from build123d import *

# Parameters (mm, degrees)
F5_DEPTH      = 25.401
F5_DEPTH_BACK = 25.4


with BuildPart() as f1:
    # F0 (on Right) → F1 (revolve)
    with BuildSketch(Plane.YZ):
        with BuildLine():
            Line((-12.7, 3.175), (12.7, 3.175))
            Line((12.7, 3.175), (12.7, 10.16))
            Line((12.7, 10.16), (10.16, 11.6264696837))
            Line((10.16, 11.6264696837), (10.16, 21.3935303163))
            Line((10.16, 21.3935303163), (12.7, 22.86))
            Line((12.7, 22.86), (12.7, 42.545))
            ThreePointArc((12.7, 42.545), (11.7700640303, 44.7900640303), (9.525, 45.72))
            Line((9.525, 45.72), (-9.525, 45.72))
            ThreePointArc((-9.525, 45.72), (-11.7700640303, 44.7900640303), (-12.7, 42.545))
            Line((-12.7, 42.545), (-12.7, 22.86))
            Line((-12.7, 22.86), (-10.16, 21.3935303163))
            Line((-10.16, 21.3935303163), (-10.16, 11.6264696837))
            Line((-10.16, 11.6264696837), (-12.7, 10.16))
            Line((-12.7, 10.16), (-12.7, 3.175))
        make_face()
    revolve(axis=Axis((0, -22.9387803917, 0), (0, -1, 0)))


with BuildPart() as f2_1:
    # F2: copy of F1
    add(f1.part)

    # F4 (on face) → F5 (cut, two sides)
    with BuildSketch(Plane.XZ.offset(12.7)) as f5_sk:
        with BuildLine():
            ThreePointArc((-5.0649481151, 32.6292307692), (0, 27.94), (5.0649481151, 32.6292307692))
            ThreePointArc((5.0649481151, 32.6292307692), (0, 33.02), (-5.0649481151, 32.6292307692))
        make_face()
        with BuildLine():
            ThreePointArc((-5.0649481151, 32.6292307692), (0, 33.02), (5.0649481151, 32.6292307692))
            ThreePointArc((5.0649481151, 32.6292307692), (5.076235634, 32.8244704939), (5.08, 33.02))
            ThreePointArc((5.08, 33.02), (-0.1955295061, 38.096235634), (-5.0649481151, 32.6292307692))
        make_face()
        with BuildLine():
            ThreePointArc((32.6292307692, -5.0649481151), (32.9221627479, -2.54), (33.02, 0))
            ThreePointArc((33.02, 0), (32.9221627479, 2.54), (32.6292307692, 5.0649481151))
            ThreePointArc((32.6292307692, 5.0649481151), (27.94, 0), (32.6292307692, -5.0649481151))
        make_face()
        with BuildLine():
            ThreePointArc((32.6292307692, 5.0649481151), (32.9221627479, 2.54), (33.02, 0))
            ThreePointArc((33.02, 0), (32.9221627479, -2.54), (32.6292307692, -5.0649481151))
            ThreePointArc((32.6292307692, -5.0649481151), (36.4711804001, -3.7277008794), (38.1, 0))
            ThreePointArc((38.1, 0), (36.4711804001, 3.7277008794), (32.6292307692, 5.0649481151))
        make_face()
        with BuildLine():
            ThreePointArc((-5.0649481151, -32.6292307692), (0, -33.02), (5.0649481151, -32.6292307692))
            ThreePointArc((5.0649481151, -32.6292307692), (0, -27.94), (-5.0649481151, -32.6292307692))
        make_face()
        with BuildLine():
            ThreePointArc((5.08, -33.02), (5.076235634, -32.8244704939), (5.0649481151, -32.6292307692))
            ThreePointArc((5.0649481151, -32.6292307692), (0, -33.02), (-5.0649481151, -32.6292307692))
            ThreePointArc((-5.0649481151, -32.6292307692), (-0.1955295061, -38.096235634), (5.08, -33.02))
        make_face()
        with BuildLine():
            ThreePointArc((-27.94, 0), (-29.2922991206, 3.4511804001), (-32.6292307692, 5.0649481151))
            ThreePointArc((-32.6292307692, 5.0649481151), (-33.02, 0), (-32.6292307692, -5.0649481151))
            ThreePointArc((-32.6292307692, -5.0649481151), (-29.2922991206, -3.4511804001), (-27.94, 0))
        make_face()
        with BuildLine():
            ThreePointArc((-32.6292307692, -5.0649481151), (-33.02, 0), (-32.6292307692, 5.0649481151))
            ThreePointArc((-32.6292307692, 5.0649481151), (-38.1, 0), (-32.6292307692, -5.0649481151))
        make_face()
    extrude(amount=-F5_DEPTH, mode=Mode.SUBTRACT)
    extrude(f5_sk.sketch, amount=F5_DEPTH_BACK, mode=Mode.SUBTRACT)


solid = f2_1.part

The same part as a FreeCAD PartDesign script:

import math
import FreeCAD as App
import Part
import Sketcher
from FreeCAD import Vector
Q = App.Units.Quantity

doc = App.newDocument("Part")
body = doc.addObject("PartDesign::Body", "Body")

# Sketch on YZ plane
sketch1 = doc.addObject("Sketcher::SketchObject", "Sketch")
body.addObject(sketch1)
sketch1.AttachmentSupport = (doc.YZ_Plane, [""])
sketch1.MapMode = "FlatFace"
sketch1.addGeometry(Part.LineSegment(Vector(-12.7, 3.2, 0), Vector(12.7, 3.2, 0)), False)
sketch1.addGeometry(Part.LineSegment(Vector(12.7, 3.2, 0), Vector(12.7, 10.2, 0)), False)
sketch1.addGeometry(Part.LineSegment(Vector(12.7, 10.2, 0), Vector(10.2, 11.6, 0)), False)
sketch1.addGeometry(Part.LineSegment(Vector(10.2, 11.6, 0), Vector(10.2, 21.4, 0)), False)
sketch1.addGeometry(Part.LineSegment(Vector(10.2, 21.4, 0), Vector(12.7, 22.9, 0)), False)
sketch1.addGeometry(Part.LineSegment(Vector(12.7, 22.9, 0), Vector(12.7, 42.5, 0)), False)
sketch1.addGeometry(Part.ArcOfCircle(Part.Circle(Vector(9.5, 42.5, 0), Vector(0, 0, 1), 3.2), math.radians(0), math.radians(90)), False)
sketch1.addGeometry(Part.LineSegment(Vector(9.5, 45.7, 0), Vector(-9.5, 45.7, 0)), False)
sketch1.addGeometry(Part.ArcOfCircle(Part.Circle(Vector(-9.5, 42.5, 0), Vector(0, 0, 1), 3.2), math.radians(90), math.radians(180)), False)
sketch1.addGeometry(Part.LineSegment(Vector(-12.7, 42.5, 0), Vector(-12.7, 22.9, 0)), False)
sketch1.addGeometry(Part.LineSegment(Vector(-12.7, 22.9, 0), Vector(-10.2, 21.4, 0)), False)
sketch1.addGeometry(Part.LineSegment(Vector(-10.2, 21.4, 0), Vector(-10.2, 11.6, 0)), False)
sketch1.addGeometry(Part.LineSegment(Vector(-10.2, 11.6, 0), Vector(-12.7, 10.2, 0)), False)
sketch1.addGeometry(Part.LineSegment(Vector(-12.7, 10.2, 0), Vector(-12.7, 3.2, 0)), False)
sketch1.addConstraint(Sketcher.Constraint("Coincident", 0, 2, 1, 1))
sketch1.addConstraint(Sketcher.Constraint("Coincident", 1, 2, 2, 1))
sketch1.addConstraint(Sketcher.Constraint("Coincident", 2, 2, 3, 1))
sketch1.addConstraint(Sketcher.Constraint("Coincident", 3, 2, 4, 1))
sketch1.addConstraint(Sketcher.Constraint("Coincident", 4, 2, 5, 1))
sketch1.addConstraint(Sketcher.Constraint("Tangent", 5, 2, 6, 1))
sketch1.addConstraint(Sketcher.Constraint("Tangent", 6, 2, 7, 1))
sketch1.addConstraint(Sketcher.Constraint("Tangent", 7, 2, 8, 1))
sketch1.addConstraint(Sketcher.Constraint("Tangent", 8, 2, 9, 1))
sketch1.addConstraint(Sketcher.Constraint("Coincident", 9, 2, 10, 1))
sketch1.addConstraint(Sketcher.Constraint("Coincident", 10, 2, 11, 1))
sketch1.addConstraint(Sketcher.Constraint("Coincident", 11, 2, 12, 1))
sketch1.addConstraint(Sketcher.Constraint("Coincident", 12, 2, 13, 1))
sketch1.addConstraint(Sketcher.Constraint("Coincident", 13, 2, 0, 1))
sketch1.addConstraint(Sketcher.Constraint("Horizontal", 0))
sketch1.addConstraint(Sketcher.Constraint("Vertical", 1))
sketch1.addConstraint(Sketcher.Constraint("Vertical", 3))
sketch1.addConstraint(Sketcher.Constraint("Vertical", 5))
sketch1.addConstraint(Sketcher.Constraint("Horizontal", 7))
sketch1.addConstraint(Sketcher.Constraint("Vertical", 9))
sketch1.addConstraint(Sketcher.Constraint("Vertical", 11))
sketch1.addConstraint(Sketcher.Constraint("Vertical", 13))
sketch1.addConstraint(Sketcher.Constraint("Equal", 6, 8))
sketch1.addConstraint(Sketcher.Constraint("Symmetric", 4, 2, 9, 2, -2))
sketch1.addConstraint(Sketcher.Constraint("Symmetric", 3, 2, 10, 2, -2))
sketch1.addConstraint(Sketcher.Constraint("Symmetric", 1, 2, 12, 2, -2))
sketch1.addConstraint(Sketcher.Constraint("Parallel", 2, 10))
sketch1.addConstraint(Sketcher.Constraint("Parallel", 4, 12))
sketch1.addConstraint(Sketcher.Constraint("Vertical", 1, 2, 4, 2))
sketch1.addConstraint(Sketcher.Constraint("DistanceX", 0, 1, 0, 2, Q("1 in")))
sketch1.addConstraint(Sketcher.Constraint("Angle", 2, Q("150 deg")))
sketch1.addConstraint(Sketcher.Constraint("Radius", 6, Q("0.125 in")))
sketch1.addConstraint(Sketcher.Constraint("DistanceY", -1, 1, 1, 2, Q("0.4 in")))
sketch1.addConstraint(Sketcher.Constraint("DistanceX", -1, 1, 2, 2, Q("0.4 in")))
sketch1.addConstraint(Sketcher.Constraint("DistanceY", -1, 1, 4, 2, Q("0.9 in")))
sketch1.addConstraint(Sketcher.Constraint("DistanceY", -1, 1, 6, 2, Q("1.8 in")))
sketch1.addConstraint(Sketcher.Constraint("DistanceY", 1, 1, 1, 2, Q("0.275 in")))
revolution = doc.addObject("PartDesign::Revolution", "Revolution")
body.addObject(revolution)
revolution.Profile = sketch1
revolution.ReferenceAxis = (sketch1, ["H_Axis"])
revolution.Angle = 360

# Sketch on XZ plane
sketch2 = doc.addObject("Sketcher::SketchObject", "Sketch001")
body.addObject(sketch2)
sketch2.AttachmentSupport = (doc.XZ_Plane, [""])
sketch2.MapMode = "FlatFace"
sketch2.AttachmentOffset = App.Placement(Vector(0, 0, 0.5 * 25.4), App.Rotation())
sketch2.addGeometry(Part.ArcOfCircle(Part.Circle(Vector(0, 33.02, 0), Vector(0, 0, 1), 5.08), math.radians(-176), math.radians(-4)), False)
sketch2.addGeometry(Part.ArcOfCircle(Part.Circle(Vector(0, 33.02, 0), Vector(0, 0, 1), 5.08), math.radians(-4.41), math.radians(0)), False)
sketch2.addGeometry(Part.ArcOfCircle(Part.Circle(Vector(0, 33.02, 0), Vector(0, 0, 1), 5.08), math.radians(0), math.radians(184)), False)
sketch2.addGeometry(Part.ArcOfCircle(Part.Circle(Vector(33.02, 0, 0), Vector(0, 0, 1), 5.08), math.radians(94), math.radians(266)), False)
sketch2.addGeometry(Part.ArcOfCircle(Part.Circle(Vector(33.02, 0, 0), Vector(0, 0, 1), 5.08), math.radians(-94), math.radians(0)), False)
sketch2.addGeometry(Part.ArcOfCircle(Part.Circle(Vector(33.02, 0, 0), Vector(0, 0, 1), 5.08), math.radians(0), math.radians(94)), False)
sketch2.addGeometry(Part.ArcOfCircle(Part.Circle(Vector(0, -33.02, 0), Vector(0, 0, 1), 5.08), math.radians(4), math.radians(176)), False)
sketch2.addGeometry(Part.ArcOfCircle(Part.Circle(Vector(0, -33.02, 0), Vector(0, 0, 1), 5.08), math.radians(176), math.radians(360)), False)
sketch2.addGeometry(Part.ArcOfCircle(Part.Circle(Vector(0, -33.02, 0), Vector(0, 0, 1), 5.08), math.radians(0), math.radians(4.41)), False)
sketch2.addGeometry(Part.ArcOfCircle(Part.Circle(Vector(-33.02, 0, 0), Vector(0, 0, 1), 5.08), math.radians(0), math.radians(86)), False)
sketch2.addGeometry(Part.ArcOfCircle(Part.Circle(Vector(-33.02, 0, 0), Vector(0, 0, 1), 5.08), math.radians(86), math.radians(274)), False)
sketch2.addGeometry(Part.ArcOfCircle(Part.Circle(Vector(-33.02, 0, 0), Vector(0, 0, 1), 5.08), math.radians(-86), math.radians(0)), False)
sketch2.addConstraint(Sketcher.Constraint("Tangent", 0, 2, 1, 1))
sketch2.addConstraint(Sketcher.Constraint("Tangent", 1, 2, 2, 1))
sketch2.addConstraint(Sketcher.Constraint("Tangent", 2, 2, 0, 1))
sketch2.addConstraint(Sketcher.Constraint("Tangent", 3, 2, 4, 1))
sketch2.addConstraint(Sketcher.Constraint("Tangent", 4, 2, 5, 1))
sketch2.addConstraint(Sketcher.Constraint("Tangent", 5, 2, 3, 1))
sketch2.addConstraint(Sketcher.Constraint("Tangent", 6, 2, 7, 1))
sketch2.addConstraint(Sketcher.Constraint("Tangent", 7, 2, 8, 1))
sketch2.addConstraint(Sketcher.Constraint("Tangent", 8, 2, 6, 1))
sketch2.addConstraint(Sketcher.Constraint("Tangent", 9, 2, 10, 1))
sketch2.addConstraint(Sketcher.Constraint("Tangent", 10, 2, 11, 1))
sketch2.addConstraint(Sketcher.Constraint("Tangent", 11, 2, 9, 1))
sketch2.addConstraint(Sketcher.Constraint("Equal", 2, 3))
sketch2.addConstraint(Sketcher.Constraint("Equal", 5, 6))
sketch2.addConstraint(Sketcher.Constraint("Equal", 8, 9))
sketch2.addConstraint(Sketcher.Constraint("Symmetric", 0, 3, 6, 3, -1, 1))
sketch2.addConstraint(Sketcher.Constraint("Symmetric", 3, 3, 9, 3, -1, 1))
sketch2.addConstraint(Sketcher.Constraint("Symmetric", 0, 2, 2, 2, -2))
sketch2.addConstraint(Sketcher.Constraint("Symmetric", 5, 2, 9, 2, -2))
sketch2.addConstraint(Sketcher.Constraint("PointOnObject", 4, 2, -1))
sketch2.addConstraint(Sketcher.Constraint("PointOnObject", 11, 2, -1))
sketch2.addConstraint(Sketcher.Constraint("Horizontal", 2, 3, 1, 2))
sketch2.addConstraint(Sketcher.Constraint("Horizontal", 8, 3, 7, 2))
sketch2.addConstraint(Sketcher.Constraint("Horizontal", 6, 2, 8, 2))
sketch2.addConstraint(Sketcher.Constraint("Horizontal", 3, 2, 10, 2))
sketch2.addConstraint(Sketcher.Constraint("Vertical", 3, 2, 5, 2))
sketch2.addConstraint(Sketcher.Constraint("Vertical", 2, 2, 6, 2))
sketch2.addConstraint(Sketcher.Constraint("Radius", 0, Q("0.2 in")))
sketch2.addConstraint(Sketcher.Constraint("DistanceY", -1, 1, 0, 3, Q("1.3 in")))
sketch2.addConstraint(Sketcher.Constraint("DistanceX", -1, 1, 3, 3, Q("1.3 in")))
sketch2.addConstraint(Sketcher.Constraint("DistanceX", -1, 1, 0, 2, Q("5.064948 mm")))
sketch2.addConstraint(Sketcher.Constraint("DistanceX", -1, 1, 3, 2, Q("32.629231 mm")))
pocket1 = doc.addObject("PartDesign::Pocket", "Pocket")
body.addObject(pocket1)
pocket1.Profile = sketch2
pocket1.Type = "ThroughAll"
pocket1.Midplane = True

doc.recompute()
